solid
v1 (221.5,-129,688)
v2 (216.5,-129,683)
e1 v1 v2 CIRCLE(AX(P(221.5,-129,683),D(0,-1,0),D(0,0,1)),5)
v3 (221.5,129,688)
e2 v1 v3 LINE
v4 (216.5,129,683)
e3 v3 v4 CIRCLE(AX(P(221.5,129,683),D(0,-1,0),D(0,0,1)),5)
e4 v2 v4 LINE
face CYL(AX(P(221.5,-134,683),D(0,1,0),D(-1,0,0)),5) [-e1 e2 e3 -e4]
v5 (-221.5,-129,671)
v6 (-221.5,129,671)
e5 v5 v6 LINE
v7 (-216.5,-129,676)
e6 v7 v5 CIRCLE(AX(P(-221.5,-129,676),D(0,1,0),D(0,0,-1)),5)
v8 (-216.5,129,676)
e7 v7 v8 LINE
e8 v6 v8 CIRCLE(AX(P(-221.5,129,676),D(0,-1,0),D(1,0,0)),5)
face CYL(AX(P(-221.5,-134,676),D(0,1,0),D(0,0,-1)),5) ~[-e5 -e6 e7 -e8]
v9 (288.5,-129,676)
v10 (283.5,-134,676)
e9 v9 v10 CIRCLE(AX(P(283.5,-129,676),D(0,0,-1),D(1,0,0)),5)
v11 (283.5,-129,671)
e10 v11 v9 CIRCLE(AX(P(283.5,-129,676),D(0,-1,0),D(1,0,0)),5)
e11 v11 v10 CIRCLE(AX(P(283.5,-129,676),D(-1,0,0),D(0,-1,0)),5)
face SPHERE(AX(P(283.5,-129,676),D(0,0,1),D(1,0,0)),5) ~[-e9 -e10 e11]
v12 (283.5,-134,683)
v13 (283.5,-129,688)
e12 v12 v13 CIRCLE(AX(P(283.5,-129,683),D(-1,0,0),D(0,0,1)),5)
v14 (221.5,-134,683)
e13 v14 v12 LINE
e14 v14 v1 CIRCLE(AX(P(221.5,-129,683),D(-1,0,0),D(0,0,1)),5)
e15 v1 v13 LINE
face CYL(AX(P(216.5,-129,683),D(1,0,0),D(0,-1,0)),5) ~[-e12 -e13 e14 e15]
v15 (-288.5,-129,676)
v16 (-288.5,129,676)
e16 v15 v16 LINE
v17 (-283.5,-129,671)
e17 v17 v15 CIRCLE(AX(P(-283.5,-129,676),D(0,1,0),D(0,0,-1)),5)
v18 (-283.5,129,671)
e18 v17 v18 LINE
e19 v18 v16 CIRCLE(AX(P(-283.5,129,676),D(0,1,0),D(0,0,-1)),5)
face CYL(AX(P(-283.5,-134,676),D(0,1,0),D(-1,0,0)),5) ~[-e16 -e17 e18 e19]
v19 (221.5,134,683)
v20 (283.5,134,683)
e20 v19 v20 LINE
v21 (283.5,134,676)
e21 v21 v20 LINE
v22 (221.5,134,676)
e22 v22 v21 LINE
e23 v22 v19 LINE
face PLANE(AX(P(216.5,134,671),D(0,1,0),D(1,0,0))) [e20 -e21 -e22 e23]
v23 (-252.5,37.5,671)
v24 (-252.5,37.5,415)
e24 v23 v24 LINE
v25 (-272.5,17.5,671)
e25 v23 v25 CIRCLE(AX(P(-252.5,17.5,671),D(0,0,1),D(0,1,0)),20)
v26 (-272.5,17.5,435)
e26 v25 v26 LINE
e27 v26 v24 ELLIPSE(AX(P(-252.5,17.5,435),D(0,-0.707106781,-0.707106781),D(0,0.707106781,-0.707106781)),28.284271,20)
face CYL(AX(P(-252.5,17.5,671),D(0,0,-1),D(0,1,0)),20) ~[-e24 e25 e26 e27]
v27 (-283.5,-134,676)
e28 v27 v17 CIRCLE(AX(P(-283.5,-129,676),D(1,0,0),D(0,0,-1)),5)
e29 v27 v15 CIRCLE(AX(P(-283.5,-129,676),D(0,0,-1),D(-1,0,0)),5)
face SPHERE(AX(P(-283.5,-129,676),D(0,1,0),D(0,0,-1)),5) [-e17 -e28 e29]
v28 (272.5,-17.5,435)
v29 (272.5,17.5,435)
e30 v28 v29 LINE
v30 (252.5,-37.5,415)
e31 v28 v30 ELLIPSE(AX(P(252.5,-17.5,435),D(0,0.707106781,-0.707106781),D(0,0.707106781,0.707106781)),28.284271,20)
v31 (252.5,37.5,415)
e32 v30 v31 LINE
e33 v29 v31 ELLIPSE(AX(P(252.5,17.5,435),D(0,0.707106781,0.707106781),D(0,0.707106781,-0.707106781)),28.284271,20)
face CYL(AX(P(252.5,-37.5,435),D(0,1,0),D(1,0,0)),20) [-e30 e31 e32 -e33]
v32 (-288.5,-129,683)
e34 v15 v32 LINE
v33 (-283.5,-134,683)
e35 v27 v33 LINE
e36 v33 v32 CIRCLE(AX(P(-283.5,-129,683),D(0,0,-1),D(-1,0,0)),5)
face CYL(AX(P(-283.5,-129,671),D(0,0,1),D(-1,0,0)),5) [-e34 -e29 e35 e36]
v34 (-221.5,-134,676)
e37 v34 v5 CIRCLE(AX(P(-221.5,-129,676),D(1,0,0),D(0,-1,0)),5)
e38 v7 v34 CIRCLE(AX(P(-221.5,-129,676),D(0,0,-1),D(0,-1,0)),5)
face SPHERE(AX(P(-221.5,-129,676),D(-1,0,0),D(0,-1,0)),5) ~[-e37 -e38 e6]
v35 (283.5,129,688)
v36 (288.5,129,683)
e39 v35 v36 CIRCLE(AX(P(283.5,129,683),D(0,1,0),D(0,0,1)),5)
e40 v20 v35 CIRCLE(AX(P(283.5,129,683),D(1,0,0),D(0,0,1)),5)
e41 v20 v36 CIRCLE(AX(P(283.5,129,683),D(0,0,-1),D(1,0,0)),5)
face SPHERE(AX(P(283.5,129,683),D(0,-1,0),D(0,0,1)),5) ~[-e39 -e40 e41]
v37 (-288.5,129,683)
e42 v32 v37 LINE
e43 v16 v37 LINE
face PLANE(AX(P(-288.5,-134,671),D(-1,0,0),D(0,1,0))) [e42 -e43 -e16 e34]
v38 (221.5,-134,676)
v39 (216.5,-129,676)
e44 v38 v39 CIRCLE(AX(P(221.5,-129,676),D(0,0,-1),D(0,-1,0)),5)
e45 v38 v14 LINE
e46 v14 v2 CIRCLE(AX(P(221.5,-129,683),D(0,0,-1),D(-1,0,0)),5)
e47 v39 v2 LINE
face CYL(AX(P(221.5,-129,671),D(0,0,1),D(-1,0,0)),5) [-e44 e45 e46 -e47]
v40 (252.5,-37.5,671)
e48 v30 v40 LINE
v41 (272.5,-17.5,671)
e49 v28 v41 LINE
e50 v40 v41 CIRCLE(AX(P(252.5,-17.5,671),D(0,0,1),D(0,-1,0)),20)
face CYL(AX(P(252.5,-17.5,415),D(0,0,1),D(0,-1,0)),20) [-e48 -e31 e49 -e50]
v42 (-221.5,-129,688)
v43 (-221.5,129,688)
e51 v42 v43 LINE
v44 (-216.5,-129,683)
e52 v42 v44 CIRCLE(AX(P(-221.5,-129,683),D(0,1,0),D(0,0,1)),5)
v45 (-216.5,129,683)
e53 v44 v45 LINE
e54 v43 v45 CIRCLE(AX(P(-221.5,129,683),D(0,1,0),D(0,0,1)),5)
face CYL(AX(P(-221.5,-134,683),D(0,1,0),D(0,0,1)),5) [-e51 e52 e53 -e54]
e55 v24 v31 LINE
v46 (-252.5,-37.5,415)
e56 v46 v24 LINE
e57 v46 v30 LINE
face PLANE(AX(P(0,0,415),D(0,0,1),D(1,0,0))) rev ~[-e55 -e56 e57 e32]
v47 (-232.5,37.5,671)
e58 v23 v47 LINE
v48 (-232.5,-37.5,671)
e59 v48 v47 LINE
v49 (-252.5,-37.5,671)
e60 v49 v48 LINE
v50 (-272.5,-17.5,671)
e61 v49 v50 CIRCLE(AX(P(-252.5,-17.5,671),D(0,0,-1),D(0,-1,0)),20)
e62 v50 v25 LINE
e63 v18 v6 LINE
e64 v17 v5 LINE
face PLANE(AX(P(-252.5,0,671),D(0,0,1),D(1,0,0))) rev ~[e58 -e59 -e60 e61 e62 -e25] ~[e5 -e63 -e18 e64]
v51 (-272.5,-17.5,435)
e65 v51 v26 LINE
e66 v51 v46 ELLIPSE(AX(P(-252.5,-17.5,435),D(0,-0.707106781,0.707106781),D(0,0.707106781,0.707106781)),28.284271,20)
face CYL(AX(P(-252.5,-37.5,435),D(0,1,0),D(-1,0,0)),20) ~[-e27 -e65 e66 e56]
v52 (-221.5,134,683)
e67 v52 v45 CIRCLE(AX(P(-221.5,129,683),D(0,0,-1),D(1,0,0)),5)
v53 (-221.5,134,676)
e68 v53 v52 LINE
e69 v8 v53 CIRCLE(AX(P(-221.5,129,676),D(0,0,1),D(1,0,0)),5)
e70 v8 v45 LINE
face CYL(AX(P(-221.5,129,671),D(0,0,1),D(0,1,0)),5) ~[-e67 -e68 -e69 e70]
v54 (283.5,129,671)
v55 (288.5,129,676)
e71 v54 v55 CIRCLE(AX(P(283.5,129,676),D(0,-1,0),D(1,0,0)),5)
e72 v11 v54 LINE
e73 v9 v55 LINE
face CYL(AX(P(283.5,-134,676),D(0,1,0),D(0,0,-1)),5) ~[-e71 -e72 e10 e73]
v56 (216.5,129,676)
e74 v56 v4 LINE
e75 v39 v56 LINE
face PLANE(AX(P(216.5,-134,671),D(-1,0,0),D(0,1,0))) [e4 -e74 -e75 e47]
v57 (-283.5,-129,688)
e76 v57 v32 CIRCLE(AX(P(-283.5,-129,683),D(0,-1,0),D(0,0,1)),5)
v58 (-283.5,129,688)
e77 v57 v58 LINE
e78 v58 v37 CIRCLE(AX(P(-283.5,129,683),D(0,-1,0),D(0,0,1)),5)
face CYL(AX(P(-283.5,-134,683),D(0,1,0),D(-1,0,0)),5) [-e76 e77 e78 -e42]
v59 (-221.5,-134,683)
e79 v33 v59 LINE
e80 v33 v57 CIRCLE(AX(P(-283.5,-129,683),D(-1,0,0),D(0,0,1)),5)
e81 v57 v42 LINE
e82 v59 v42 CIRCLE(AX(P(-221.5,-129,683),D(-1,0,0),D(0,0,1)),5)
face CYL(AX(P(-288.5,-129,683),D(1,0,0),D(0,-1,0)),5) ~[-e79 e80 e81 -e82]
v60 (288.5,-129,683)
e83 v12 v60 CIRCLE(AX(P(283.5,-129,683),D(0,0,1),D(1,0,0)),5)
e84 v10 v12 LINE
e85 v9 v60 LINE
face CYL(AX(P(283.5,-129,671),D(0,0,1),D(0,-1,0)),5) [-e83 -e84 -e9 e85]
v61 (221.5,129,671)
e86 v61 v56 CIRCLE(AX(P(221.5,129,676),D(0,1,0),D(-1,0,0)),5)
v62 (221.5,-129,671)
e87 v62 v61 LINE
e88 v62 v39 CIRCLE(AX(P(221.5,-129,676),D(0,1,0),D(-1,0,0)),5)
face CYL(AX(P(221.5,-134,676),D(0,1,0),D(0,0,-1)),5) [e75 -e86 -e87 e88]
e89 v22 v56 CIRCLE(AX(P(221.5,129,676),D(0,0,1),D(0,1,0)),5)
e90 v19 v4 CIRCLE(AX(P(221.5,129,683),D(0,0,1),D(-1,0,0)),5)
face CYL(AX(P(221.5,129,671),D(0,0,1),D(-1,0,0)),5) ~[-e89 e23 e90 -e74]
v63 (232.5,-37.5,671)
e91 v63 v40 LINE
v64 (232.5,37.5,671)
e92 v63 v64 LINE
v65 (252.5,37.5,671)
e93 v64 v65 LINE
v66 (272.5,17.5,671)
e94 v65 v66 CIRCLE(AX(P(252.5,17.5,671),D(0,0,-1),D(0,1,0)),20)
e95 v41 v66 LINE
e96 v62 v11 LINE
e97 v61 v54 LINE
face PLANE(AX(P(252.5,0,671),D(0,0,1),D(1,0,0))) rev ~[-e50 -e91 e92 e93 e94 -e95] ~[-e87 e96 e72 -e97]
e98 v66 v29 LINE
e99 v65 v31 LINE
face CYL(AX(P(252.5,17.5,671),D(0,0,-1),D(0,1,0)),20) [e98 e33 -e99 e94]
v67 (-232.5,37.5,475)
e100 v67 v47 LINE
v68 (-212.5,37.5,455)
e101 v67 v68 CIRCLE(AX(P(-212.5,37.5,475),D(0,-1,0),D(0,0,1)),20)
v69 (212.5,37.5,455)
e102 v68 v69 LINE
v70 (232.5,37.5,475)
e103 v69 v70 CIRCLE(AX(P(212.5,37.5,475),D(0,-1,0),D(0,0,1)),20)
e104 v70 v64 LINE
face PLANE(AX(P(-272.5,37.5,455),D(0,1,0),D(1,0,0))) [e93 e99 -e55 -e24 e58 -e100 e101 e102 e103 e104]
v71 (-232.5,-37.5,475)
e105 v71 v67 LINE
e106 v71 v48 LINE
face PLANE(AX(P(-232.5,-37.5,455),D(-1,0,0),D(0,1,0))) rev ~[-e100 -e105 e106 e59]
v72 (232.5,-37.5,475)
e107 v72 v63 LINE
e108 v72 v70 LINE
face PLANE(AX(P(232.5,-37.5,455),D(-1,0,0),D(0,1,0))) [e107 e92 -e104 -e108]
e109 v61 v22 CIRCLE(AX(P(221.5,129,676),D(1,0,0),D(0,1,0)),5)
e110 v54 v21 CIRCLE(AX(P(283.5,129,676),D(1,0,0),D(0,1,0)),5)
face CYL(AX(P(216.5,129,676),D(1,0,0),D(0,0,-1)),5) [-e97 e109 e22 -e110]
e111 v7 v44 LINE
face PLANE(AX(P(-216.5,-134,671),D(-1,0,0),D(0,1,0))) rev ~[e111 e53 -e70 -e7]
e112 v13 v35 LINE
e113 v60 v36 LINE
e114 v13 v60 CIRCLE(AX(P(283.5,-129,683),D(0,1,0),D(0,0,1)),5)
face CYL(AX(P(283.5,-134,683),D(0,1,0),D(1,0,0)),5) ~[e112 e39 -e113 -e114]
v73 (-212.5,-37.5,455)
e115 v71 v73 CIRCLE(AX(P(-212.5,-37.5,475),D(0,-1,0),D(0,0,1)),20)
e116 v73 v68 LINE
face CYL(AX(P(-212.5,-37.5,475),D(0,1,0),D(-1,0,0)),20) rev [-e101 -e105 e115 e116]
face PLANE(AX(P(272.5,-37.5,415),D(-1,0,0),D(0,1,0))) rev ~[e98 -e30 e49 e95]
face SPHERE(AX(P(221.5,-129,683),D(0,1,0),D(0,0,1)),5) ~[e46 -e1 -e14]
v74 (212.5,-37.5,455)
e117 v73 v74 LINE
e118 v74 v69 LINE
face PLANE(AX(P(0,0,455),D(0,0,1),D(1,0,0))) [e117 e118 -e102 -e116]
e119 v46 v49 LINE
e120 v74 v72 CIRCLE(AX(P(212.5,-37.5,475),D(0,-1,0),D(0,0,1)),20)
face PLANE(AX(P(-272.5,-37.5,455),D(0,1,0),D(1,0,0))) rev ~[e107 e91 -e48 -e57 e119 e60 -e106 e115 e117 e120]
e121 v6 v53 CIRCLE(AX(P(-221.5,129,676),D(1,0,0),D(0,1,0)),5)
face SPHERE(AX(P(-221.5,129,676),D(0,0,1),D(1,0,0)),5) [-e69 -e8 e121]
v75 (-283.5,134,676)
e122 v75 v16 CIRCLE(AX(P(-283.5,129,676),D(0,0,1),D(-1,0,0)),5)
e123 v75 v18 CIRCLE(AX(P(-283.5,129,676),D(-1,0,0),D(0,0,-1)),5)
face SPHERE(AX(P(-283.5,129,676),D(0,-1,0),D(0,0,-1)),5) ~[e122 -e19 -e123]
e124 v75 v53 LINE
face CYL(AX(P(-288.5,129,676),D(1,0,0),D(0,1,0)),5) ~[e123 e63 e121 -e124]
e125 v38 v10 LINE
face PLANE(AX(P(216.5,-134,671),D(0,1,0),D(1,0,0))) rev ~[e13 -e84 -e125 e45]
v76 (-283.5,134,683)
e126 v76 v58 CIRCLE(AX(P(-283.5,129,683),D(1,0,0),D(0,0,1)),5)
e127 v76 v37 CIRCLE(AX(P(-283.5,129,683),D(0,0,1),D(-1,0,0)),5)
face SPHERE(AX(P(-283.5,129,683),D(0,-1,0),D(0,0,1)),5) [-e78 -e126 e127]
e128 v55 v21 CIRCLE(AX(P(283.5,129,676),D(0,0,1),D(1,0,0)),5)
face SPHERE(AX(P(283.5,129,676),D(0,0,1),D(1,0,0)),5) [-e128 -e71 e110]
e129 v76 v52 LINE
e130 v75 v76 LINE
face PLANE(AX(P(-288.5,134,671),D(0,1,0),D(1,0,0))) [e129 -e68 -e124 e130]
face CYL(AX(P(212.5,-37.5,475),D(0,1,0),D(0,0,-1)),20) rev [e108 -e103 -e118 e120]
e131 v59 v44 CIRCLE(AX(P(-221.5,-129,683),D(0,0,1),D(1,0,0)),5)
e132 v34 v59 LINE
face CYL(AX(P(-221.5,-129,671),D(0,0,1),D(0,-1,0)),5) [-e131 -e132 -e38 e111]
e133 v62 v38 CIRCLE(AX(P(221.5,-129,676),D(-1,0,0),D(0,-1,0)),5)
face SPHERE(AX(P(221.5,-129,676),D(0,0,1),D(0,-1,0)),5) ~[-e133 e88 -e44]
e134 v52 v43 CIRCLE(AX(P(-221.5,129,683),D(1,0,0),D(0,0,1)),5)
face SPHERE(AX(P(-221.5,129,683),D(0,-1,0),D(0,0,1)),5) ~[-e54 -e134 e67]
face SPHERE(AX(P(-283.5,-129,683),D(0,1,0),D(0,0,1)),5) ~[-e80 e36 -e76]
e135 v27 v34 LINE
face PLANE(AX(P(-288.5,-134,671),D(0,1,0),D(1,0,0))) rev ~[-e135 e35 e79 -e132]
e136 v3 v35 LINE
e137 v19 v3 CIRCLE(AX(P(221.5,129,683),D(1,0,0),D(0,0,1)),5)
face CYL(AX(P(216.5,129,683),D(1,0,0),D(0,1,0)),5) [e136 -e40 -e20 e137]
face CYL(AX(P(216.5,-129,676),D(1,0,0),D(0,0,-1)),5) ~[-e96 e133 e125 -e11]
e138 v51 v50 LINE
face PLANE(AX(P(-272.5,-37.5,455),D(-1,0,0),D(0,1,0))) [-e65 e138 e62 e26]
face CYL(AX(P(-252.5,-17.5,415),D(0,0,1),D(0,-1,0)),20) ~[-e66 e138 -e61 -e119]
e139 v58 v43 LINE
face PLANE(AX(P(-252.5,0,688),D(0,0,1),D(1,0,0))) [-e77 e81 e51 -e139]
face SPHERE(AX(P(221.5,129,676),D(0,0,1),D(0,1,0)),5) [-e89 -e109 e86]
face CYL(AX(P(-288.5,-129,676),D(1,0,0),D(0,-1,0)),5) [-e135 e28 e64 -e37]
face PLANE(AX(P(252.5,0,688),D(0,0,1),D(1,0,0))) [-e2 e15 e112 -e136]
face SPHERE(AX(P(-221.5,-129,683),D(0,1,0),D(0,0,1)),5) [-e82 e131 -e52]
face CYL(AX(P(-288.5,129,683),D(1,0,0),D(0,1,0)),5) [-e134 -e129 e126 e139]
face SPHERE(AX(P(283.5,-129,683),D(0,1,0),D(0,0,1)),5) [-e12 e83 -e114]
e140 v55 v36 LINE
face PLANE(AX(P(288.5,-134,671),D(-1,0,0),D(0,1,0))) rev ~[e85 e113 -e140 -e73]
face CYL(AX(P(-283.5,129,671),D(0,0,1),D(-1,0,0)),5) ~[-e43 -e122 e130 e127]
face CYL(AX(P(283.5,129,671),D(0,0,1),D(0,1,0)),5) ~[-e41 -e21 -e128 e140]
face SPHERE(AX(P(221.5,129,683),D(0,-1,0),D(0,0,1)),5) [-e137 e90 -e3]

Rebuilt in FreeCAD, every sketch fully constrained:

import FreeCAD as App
import Part
import Sketcher


def edges_at(feature, points):
    """Names of the edges that pass closest to the given points."""
    edges = feature.Shape.Edges
    near = lambda p: min(range(len(edges)), key=lambda i: edges[i].distToShape(Part.Vertex(*p))[0])
    return sorted({f"Edge{near(p) + 1}" for p in points})


def add_polygon(sketch, points):
    """Adds a closed chain of lines whose ends are joined by coincident constraints."""
    first, n = sketch.GeometryCount, len(points)
    for a, b in zip(points, points[1:] + points[:1]):
        sketch.addGeometry(Part.LineSegment(App.Vector(*a, 0), App.Vector(*b, 0)), False)
    for i in range(n):
        sketch.addConstraint(Sketcher.Constraint("Coincident", first + i, 2, first + (i + 1) % n, 1))

doc = App.newDocument("Part")
body = doc.addObject("PartDesign::Body", "Body")

# Sketch on XY plane
sketch1 = doc.addObject("Sketcher::SketchObject", "Sketch")
body.addObject(sketch1)
sketch1.AttachmentSupport = (doc.XY_Plane, [""])
sketch1.MapMode = "FlatFace"
sketch1.AttachmentOffset = App.Placement(App.Vector(0, 0, 415), App.Rotation())
add_polygon(sketch1, [(-272.5, 37.5), (-272.5, -37.5), (272.5, -37.5), (272.5, 37.5)])  # lines 0-3
sketch1.addConstraint([
    Sketcher.Constraint("Vertical", 0),
    Sketcher.Constraint("Horizontal", 1),
    Sketcher.Constraint("Vertical", 2),
    Sketcher.Constraint("Horizontal", 3),
    Sketcher.Constraint("Symmetric", 0, 2, 2, 2, -1, 1),
    Sketcher.Constraint("DistanceX", 1, 1, 1, 2, 545.0),
    Sketcher.Constraint("DistanceY", 0, 2, 0, 1, 75.0),
])
pad1 = doc.addObject("PartDesign::Pad", "Pad")
body.addObject(pad1)
pad1.Profile = sketch1
pad1.Length = 40

# Sketch on XY plane
sketch2 = doc.addObject("Sketcher::SketchObject", "Sketch001")
body.addObject(sketch2)
sketch2.AttachmentSupport = (doc.XY_Plane, [""])
sketch2.MapMode = "FlatFace"
sketch2.AttachmentOffset = App.Placement(App.Vector(0, 0, 455), App.Rotation())
add_polygon(sketch2, [(-272.5, 37.5), (-272.5, -37.5), (-232.5, -37.5), (-232.5, 37.5)])  # lines 0-3
add_polygon(sketch2, [(232.5, 37.5), (232.5, -37.5), (272.5, -37.5), (272.5, 37.5)])  # lines 4-7
sketch2.addConstraint([
    Sketcher.Constraint("Vertical", 0),
    Sketcher.Constraint("Horizontal", 1),
    Sketcher.Constraint("Vertical", 2),
    Sketcher.Constraint("Horizontal", 3),
    Sketcher.Constraint("Vertical", 4),
    Sketcher.Constraint("Horizontal", 5),
    Sketcher.Constraint("Vertical", 6),
    Sketcher.Constraint("Horizontal", 7),
    Sketcher.Constraint("Symmetric", 2, 2, 4, 2, -1, 1),
    Sketcher.Constraint("Symmetric", 0, 2, 6, 2, -1, 1),
    Sketcher.Constraint("Horizontal", 1, 2, 4, 2),
    Sketcher.Constraint("DistanceX", 1, 1, 1, 2, 40.0),
    Sketcher.Constraint("DistanceY", 0, 2, 0, 1, 75.0),
    Sketcher.Constraint("DistanceX", 1, 2, 4, 2, 465.0),
])
pad2 = doc.addObject("PartDesign::Pad", "Pad001")
body.addObject(pad2)
pad2.Profile = sketch2
pad2.Length = 216

# Sketch on XY plane
sketch3 = doc.addObject("Sketcher::SketchObject", "Sketch002")
body.addObject(sketch3)
sketch3.AttachmentSupport = (doc.XY_Plane, [""])
sketch3.MapMode = "FlatFace"
sketch3.AttachmentOffset = App.Placement(App.Vector(0, 0, 671), App.Rotation())
add_polygon(sketch3, [(-288.5, 134), (-288.5, -134), (-216.5, -134), (-216.5, 134)])  # lines 0-3
add_polygon(sketch3, [(216.5, 134), (216.5, -134), (288.5, -134), (288.5, 134)])  # lines 4-7
sketch3.addConstraint([
    Sketcher.Constraint("Vertical", 0),
    Sketcher.Constraint("Horizontal", 1),
    Sketcher.Constraint("Vertical", 2),
    Sketcher.Constraint("Horizontal", 3),
    Sketcher.Constraint("Vertical", 4),
    Sketcher.Constraint("Horizontal", 5),
    Sketcher.Constraint("Vertical", 6),
    Sketcher.Constraint("Horizontal", 7),
    Sketcher.Constraint("Symmetric", 2, 2, 4, 2, -1, 1),
    Sketcher.Constraint("Symmetric", 0, 2, 6, 2, -1, 1),
    Sketcher.Constraint("Horizontal", 1, 2, 4, 2),
    Sketcher.Constraint("DistanceX", 1, 1, 1, 2, 72.0),
    Sketcher.Constraint("DistanceY", 0, 2, 0, 1, 268.0),
    Sketcher.Constraint("DistanceX", 1, 2, 4, 2, 433.0),
])
pad3 = doc.addObject("PartDesign::Pad", "Pad002")
body.addObject(pad3)
pad3.Profile = sketch3
pad3.Length = 17
doc.recompute()

fillet = doc.addObject("PartDesign::Fillet", "Fillet")
body.addObject(fillet)
fillet.Base = (pad3, edges_at(pad3, [
    (-288.5, 0, 688),
    (-216.5, 0, 688),
    (216.5, 0, 688),
    (288.5, 0, 688),
    (252.5, -134, 688),
    (252.5, 134, 688),
    (-252.5, 134, 688),
    (-252.5, -134, 688),
    (216.5, -134, 679.5),
    (288.5, -134, 679.5),
    (288.5, 134, 679.5),
    (216.5, 134, 679.5),
    (288.5, 0, 671),
    (252.5, 134, 671),
    (252.5, -134, 671),
    (216.5, 0, 671),
    (-288.5, 0, 671),
    (-252.5, -134, 671),
    (-288.5, -134, 679.5),
    (-216.5, -134, 679.5),
    (-216.5, 134, 679.5),
    (-216.5, 0, 671),
    (-252.5, 134, 671),
    (-288.5, 134, 679.5),
]))
fillet.Radius = 5
doc.recompute()

fillet2 = doc.addObject("PartDesign::Fillet", "Fillet001")
body.addObject(fillet2)
fillet2.Base = (fillet, edges_at(fillet, [
    (-272.5, 0, 415),
    (-232.5, 0, 455),
    (232.5, 0, 455),
    (272.5, 0, 415),
    (272.5, -37.5, 543),
    (272.5, 37.5, 543),
    (-272.5, -37.5, 543),
    (-272.5, 37.5, 543),
]))
fillet2.Radius = 20

doc.recompute()
